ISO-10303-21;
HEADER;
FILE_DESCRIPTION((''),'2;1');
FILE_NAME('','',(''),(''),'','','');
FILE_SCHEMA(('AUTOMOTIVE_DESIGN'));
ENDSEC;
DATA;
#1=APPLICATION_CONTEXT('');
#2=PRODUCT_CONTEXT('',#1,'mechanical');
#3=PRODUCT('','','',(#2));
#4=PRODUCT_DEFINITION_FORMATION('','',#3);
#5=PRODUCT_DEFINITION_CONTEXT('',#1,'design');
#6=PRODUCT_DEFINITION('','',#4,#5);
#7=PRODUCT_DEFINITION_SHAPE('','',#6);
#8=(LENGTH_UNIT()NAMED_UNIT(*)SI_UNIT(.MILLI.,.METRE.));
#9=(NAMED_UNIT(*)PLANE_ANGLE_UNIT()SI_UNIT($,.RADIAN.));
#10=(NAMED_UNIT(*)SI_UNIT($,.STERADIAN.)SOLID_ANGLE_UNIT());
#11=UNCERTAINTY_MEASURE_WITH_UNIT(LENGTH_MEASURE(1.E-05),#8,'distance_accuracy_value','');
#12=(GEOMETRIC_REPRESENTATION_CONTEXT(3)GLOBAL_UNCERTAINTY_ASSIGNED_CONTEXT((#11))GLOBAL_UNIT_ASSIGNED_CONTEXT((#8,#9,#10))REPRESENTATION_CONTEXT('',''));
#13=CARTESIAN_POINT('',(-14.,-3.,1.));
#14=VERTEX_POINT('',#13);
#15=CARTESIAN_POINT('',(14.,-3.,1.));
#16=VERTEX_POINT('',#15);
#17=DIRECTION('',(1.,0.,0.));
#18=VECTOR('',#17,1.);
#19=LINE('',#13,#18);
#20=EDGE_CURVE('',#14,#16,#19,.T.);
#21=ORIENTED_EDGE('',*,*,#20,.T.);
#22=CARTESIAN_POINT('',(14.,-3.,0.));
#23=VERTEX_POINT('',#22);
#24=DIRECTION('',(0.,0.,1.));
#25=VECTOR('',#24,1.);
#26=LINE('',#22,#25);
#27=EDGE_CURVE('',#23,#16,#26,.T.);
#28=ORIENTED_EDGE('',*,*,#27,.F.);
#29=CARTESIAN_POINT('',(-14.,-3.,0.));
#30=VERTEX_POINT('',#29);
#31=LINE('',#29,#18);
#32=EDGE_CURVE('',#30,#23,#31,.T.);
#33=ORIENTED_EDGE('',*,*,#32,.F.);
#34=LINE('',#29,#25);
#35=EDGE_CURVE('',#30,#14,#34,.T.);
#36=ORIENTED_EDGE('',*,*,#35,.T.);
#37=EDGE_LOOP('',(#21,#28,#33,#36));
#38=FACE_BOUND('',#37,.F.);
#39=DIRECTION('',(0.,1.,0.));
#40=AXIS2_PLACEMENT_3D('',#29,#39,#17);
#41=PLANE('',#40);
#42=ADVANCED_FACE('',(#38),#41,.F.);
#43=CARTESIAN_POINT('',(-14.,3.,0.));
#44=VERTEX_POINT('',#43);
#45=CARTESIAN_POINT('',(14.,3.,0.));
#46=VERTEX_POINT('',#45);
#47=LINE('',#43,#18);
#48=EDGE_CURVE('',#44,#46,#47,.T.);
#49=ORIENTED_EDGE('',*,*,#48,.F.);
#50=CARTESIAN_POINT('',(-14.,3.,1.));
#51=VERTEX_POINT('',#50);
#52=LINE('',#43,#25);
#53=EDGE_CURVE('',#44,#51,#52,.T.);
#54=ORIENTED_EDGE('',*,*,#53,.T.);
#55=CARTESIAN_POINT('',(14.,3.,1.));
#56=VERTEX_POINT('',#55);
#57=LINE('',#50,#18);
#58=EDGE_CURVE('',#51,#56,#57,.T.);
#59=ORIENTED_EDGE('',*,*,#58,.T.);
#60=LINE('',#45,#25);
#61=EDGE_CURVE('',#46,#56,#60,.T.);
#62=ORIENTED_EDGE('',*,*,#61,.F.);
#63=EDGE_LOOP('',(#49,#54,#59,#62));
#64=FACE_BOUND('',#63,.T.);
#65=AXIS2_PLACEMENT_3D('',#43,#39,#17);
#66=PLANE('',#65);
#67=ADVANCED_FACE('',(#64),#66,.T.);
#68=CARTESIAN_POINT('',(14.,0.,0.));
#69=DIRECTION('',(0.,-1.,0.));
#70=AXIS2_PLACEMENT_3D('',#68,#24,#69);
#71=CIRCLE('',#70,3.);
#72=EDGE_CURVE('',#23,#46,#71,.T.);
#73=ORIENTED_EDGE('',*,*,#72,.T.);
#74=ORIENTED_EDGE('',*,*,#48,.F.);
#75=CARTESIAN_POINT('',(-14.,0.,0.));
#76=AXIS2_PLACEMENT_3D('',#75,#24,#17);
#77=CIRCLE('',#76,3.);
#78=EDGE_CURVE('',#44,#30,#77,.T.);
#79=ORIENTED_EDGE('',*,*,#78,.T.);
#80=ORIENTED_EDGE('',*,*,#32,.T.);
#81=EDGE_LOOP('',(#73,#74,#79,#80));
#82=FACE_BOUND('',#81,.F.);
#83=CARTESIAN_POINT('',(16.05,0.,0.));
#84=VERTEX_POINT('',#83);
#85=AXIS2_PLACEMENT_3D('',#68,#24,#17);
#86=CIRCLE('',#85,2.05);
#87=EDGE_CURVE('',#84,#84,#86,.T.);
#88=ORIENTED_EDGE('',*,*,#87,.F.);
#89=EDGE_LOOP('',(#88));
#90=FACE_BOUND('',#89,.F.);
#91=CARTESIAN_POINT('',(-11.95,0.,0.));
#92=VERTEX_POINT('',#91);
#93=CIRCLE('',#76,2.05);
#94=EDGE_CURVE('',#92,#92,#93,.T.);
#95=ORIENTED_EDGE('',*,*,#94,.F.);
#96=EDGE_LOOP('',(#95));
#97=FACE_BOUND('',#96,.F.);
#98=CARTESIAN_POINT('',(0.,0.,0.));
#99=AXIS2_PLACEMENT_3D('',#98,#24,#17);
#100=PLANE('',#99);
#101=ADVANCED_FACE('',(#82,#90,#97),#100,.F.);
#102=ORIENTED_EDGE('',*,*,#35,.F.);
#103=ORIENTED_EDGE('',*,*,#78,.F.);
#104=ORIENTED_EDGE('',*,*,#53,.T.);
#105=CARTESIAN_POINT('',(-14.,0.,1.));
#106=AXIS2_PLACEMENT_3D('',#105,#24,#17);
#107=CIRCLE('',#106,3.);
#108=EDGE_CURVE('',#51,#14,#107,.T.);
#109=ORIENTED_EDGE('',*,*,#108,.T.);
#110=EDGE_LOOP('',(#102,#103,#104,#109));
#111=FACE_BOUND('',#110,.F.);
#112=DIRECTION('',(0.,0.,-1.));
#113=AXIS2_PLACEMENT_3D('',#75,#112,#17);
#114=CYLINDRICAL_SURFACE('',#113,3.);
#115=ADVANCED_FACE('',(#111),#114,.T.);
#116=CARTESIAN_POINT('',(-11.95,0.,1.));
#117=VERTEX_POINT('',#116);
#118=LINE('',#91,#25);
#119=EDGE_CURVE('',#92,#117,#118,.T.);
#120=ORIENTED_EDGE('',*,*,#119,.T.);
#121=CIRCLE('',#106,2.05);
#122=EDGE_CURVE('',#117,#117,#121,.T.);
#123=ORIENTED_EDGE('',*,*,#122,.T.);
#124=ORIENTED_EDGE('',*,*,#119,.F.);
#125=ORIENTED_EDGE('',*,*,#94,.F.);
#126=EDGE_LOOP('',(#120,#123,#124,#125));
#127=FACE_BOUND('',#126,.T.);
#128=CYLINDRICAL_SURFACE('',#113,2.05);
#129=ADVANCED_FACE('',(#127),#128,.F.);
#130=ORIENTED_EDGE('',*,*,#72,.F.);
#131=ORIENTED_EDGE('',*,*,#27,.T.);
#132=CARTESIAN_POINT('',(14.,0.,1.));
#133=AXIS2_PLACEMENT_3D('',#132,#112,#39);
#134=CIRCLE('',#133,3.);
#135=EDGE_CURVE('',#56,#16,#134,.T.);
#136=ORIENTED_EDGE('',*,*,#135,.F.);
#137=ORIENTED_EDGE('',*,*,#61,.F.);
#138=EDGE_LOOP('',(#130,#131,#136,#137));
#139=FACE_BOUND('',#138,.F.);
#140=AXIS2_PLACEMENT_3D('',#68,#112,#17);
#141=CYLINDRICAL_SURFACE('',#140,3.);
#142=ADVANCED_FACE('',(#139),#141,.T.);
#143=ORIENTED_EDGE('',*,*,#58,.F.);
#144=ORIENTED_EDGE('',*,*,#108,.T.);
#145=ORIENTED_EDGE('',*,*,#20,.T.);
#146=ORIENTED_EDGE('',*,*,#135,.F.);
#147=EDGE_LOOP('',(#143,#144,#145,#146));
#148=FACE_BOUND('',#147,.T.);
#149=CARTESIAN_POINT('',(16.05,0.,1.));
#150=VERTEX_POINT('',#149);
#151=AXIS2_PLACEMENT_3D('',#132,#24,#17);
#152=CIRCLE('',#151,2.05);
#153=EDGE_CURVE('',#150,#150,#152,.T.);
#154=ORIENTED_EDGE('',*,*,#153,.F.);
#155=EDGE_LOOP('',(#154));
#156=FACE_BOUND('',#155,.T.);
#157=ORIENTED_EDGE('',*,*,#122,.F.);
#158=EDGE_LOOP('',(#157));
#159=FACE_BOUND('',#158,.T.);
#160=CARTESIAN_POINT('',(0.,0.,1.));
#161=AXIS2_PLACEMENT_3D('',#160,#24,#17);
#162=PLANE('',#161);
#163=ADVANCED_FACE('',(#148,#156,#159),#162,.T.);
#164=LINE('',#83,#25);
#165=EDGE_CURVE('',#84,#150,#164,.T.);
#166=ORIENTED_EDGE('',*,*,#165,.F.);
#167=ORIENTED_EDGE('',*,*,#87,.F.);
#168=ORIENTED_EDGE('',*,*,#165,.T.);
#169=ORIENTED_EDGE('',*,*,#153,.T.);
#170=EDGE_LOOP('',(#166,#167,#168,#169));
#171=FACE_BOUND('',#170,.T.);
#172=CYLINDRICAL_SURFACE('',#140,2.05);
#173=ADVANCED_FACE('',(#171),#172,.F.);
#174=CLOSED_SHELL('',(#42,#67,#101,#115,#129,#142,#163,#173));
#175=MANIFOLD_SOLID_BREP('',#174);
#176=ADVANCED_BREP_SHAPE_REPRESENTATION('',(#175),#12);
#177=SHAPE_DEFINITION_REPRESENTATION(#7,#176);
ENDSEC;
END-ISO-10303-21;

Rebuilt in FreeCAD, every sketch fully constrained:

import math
import FreeCAD as App
import Part
import Sketcher

doc = App.newDocument("Part")
params = doc.addObject("Spreadsheet::Sheet", "Params")
for row, (alias, value) in enumerate([
    ("sketch1_radius", "3 mm"),
    ("sketch1_diameter", "4.1 mm"),
    ("sketch1_width", "28 mm"),
    ("pad1_length", "1 mm"),
], start=1):
    params.set(f"A{row}", alias)
    params.set(f"B{row}", "=" + value)
    params.setAlias(f"B{row}", alias)

body = doc.addObject("PartDesign::Body", "Body")

sketch1 = body.newObject("Sketcher::SketchObject", "Sketch")
sketch1.AttachmentSupport = (doc.getObject("XY_Plane"), [""])
sketch1.MapMode = "FlatFace"
sketch1.addGeometry([
    Part.ArcOfCircle(Part.Circle(App.Vector(14, 0, 0), App.Vector(0, 0, 1), 3), math.radians(-90), math.radians(90)),
    Part.LineSegment(App.Vector(14, 3, 0), App.Vector(-14, 3, 0)),
    Part.ArcOfCircle(Part.Circle(App.Vector(-14, 0, 0), App.Vector(0, 0, 1), 3), math.radians(90), math.radians(270)),
    Part.LineSegment(App.Vector(-14, -3, 0), App.Vector(14, -3, 0)),
    Part.Circle(App.Vector(14, 0, 0), App.Vector(0, 0, 1), 2),
    Part.Circle(App.Vector(-14, 0, 0), App.Vector(0, 0, 1), 2),
], False)
sketch1.addConstraint([
    Sketcher.Constraint("Tangent", 0, 2, 1, 1),
    Sketcher.Constraint("Tangent", 1, 2, 2, 1),
    Sketcher.Constraint("Tangent", 2, 2, 3, 1),
    Sketcher.Constraint("Tangent", 3, 2, 0, 1),
    Sketcher.Constraint("Horizontal", 1),
    Sketcher.Constraint("Horizontal", 3),
    Sketcher.Constraint("Coincident", 4, 3, 0, 3),
    Sketcher.Constraint("Coincident", 5, 3, 2, 3),
    Sketcher.Constraint("Equal", 4, 5),
    Sketcher.Constraint("Symmetric", 0, 3, 2, 3, -1, 1),
    Sketcher.Constraint("Radius", 0, 3.0),
    Sketcher.Constraint("Diameter", 4, 4.1),
    Sketcher.Constraint("DistanceX", 1, 2, 1, 1, 28.0),
])
sketch1.setExpression("Constraints[10]", "Params.sketch1_radius")
sketch1.setExpression("Constraints[11]", "Params.sketch1_diameter")
sketch1.setExpression("Constraints[12]", "Params.sketch1_width")
pad1 = body.newObject("PartDesign::Pad", "Pad")
pad1.Profile = sketch1
pad1.setExpression("Length", "Params.pad1_length")

doc.recompute()
